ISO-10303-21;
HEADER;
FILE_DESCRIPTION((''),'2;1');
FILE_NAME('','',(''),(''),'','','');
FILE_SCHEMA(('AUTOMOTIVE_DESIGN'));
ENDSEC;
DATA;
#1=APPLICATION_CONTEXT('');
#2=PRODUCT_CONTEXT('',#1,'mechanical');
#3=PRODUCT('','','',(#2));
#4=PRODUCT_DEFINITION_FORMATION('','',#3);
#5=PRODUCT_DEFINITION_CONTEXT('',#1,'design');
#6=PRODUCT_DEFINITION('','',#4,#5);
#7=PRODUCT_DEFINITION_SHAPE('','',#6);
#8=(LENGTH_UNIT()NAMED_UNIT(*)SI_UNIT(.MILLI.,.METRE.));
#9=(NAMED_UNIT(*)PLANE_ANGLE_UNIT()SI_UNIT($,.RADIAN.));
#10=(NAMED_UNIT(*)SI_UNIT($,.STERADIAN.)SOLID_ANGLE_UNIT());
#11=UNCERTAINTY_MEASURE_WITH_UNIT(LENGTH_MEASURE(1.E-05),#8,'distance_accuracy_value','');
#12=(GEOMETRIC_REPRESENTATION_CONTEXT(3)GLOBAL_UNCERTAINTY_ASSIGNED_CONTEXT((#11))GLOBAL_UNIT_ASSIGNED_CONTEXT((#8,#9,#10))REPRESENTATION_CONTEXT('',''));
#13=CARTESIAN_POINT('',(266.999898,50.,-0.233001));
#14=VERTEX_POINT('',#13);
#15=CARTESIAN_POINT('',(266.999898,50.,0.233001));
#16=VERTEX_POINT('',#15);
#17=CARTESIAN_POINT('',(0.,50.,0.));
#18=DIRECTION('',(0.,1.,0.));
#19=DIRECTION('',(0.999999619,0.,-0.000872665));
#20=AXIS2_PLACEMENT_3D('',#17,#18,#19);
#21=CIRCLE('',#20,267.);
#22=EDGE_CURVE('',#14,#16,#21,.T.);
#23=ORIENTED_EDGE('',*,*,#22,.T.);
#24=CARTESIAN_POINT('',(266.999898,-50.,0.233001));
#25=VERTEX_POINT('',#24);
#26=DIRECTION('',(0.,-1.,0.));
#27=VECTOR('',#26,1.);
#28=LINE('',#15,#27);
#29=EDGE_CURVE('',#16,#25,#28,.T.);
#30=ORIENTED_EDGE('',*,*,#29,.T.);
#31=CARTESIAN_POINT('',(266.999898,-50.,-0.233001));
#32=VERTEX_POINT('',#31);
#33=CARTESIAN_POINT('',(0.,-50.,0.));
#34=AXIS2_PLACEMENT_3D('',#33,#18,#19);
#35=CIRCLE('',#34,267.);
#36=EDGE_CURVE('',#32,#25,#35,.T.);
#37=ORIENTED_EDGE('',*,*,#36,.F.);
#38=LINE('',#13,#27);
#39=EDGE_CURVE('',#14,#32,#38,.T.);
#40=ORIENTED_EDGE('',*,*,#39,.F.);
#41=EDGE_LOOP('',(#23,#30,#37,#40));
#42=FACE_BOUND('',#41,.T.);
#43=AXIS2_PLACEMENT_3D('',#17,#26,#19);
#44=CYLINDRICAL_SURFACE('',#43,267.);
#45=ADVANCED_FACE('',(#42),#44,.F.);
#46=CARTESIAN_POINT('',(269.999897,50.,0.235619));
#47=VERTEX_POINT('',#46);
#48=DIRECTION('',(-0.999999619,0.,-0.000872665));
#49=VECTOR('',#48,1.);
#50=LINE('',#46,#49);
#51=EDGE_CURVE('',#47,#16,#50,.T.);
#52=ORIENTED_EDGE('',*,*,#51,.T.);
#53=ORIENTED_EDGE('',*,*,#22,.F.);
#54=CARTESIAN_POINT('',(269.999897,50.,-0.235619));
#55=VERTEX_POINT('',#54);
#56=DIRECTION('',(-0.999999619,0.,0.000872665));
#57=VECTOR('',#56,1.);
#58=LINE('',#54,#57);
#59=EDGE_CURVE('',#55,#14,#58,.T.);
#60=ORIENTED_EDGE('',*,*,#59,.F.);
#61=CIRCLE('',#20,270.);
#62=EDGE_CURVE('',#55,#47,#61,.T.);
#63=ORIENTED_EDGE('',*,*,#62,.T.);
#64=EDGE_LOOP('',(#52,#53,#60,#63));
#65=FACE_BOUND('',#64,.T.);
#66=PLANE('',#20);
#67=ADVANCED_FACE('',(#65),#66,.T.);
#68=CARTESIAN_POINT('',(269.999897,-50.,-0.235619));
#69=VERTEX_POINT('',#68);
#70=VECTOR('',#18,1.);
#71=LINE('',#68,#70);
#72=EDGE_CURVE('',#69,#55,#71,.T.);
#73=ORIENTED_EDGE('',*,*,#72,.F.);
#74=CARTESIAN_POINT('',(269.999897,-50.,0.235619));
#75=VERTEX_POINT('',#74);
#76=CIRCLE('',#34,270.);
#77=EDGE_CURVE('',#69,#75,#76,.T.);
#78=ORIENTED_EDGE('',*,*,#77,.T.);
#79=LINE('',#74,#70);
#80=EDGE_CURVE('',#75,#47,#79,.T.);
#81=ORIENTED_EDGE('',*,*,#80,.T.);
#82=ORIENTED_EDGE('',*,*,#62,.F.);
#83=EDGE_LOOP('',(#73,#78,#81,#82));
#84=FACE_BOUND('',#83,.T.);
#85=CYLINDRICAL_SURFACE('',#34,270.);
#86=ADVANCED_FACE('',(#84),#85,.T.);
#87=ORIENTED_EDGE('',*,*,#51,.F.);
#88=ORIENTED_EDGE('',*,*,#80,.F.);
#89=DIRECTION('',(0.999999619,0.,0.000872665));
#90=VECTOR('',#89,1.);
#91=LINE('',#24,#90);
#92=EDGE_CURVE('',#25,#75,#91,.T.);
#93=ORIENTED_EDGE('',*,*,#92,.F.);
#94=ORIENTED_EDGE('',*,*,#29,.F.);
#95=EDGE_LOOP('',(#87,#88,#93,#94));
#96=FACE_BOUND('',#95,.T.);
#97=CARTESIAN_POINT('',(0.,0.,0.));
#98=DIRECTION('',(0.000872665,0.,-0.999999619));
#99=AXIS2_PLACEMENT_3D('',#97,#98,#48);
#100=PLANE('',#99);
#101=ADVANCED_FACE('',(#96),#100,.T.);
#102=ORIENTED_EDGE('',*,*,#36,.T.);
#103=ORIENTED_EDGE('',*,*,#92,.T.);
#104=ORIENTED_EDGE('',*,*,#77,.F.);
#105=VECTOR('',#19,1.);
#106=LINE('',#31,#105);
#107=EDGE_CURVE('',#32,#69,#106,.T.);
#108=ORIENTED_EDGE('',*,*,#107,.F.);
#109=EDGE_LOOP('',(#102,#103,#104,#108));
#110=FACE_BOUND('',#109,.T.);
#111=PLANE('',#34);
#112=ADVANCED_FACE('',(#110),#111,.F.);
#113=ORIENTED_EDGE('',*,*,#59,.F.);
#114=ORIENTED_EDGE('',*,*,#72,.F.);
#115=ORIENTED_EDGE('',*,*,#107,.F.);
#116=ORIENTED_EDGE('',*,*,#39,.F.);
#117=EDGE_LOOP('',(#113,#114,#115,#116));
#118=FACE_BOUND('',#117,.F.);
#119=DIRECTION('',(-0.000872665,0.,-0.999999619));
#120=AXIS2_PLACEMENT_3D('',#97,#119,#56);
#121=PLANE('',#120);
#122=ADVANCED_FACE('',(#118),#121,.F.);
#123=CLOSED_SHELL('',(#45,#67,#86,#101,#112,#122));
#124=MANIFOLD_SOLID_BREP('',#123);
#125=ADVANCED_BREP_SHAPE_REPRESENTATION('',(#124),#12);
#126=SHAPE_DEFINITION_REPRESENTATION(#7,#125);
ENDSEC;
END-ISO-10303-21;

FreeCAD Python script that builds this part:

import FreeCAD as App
import Part
import Sketcher
from FreeCAD import Vector
Q = App.Units.Quantity


def add_polygon(sketch, points):
    """Adds a closed chain of lines whose ends are joined by coincident constraints."""
    first, n = sketch.GeometryCount, len(points)
    for a, b in zip(points, points[1:] + points[:1]):
        sketch.addGeometry(Part.LineSegment(App.Vector(*a, 0), App.Vector(*b, 0)), False)
    for i in range(n):
        sketch.addConstraint(Sketcher.Constraint("Coincident", first + i, 2, first + (i + 1) % n, 1))

doc = App.newDocument("Part")
body = doc.addObject("PartDesign::Body", "Body")

sketch1 = body.newObject("Sketcher::SketchObject", "Sketch")
sketch1.AttachmentSupport = (doc.getObject("XY_Plane"), [""])
sketch1.MapMode = "FlatFace"
add_polygon(sketch1, [(-267, 50), (-270, 50), (-270, -50), (-267, -50)])
sketch1.addConstraint(Sketcher.Constraint("Horizontal", 0))
sketch1.addConstraint(Sketcher.Constraint("Vertical", 1))
sketch1.addConstraint(Sketcher.Constraint("Horizontal", 2))
sketch1.addConstraint(Sketcher.Constraint("Vertical", 3))
sketch1.addConstraint(Sketcher.Constraint("DistanceY", 1, 2, 1, 1, Q("3.937 in")))
sketch1.addConstraint(Sketcher.Constraint("DistanceX", 0, 2, 0, 1, Q("0.1181 in")))
sketch1.addConstraint(Sketcher.Constraint("DistanceX", 0, 2, -1, 1, 270.0))
sketch1.addConstraint(Sketcher.Constraint("DistanceY", -1, 1, 0, 2, Q("1.9685 in")))
revolution = body.newObject("PartDesign::Revolution", "Revolution")
revolution.Profile = sketch1
revolution.ReferenceAxis = (sketch1, ["V_Axis"])
revolution.Angle = 359.9
revolution.Midplane = True

doc.recompute()
